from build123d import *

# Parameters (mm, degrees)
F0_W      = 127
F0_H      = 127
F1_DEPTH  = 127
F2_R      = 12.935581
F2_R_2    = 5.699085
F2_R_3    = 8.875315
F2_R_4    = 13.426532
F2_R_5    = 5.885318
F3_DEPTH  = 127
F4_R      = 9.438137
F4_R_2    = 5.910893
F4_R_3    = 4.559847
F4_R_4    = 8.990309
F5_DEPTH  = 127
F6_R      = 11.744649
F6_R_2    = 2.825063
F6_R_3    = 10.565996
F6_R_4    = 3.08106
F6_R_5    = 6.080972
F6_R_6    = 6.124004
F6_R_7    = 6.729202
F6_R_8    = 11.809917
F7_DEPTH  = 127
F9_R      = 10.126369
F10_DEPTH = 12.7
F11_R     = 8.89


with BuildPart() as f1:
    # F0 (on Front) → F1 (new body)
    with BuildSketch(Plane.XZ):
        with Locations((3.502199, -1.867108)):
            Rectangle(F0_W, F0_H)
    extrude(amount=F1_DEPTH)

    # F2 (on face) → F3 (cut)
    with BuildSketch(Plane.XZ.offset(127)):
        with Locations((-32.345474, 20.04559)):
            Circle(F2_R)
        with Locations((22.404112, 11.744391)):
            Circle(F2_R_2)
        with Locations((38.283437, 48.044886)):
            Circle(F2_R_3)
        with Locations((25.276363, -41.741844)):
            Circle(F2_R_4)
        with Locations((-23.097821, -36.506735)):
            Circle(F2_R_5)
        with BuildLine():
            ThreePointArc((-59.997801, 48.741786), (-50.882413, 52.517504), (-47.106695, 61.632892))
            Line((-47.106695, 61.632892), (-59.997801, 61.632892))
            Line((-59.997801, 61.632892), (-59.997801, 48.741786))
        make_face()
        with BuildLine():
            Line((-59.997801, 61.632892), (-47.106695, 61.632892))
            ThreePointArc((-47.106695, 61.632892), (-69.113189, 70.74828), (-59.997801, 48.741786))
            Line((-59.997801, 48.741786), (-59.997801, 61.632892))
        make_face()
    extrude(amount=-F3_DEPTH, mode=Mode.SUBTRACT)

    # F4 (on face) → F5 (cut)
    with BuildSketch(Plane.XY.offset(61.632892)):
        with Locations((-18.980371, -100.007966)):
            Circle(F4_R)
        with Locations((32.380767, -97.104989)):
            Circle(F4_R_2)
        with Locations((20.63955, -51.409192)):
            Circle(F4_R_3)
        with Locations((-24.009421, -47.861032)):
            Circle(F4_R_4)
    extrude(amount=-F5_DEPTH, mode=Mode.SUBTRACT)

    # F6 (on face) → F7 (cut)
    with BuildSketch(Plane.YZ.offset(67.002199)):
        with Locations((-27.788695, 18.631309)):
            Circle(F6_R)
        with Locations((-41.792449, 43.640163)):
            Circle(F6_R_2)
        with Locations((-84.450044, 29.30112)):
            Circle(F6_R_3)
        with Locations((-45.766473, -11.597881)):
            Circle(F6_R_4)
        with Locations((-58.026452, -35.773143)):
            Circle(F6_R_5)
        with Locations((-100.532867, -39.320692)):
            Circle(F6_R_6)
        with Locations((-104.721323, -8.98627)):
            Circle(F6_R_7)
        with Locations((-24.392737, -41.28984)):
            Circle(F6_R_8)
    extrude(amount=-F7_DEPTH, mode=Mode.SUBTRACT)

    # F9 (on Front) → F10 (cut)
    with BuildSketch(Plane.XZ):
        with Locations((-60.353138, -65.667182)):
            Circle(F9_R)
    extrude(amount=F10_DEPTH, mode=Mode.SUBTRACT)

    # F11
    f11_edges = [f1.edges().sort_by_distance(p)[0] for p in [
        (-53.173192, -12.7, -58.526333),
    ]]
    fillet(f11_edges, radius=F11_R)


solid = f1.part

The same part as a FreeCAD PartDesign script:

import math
import FreeCAD as App
import Part
import Sketcher
from FreeCAD import Vector
Q = App.Units.Quantity


def edges_at(feature, points):
    """Names of the edges that pass closest to the given points."""
    edges = feature.Shape.Edges
    near = lambda p: min(range(len(edges)), key=lambda i: edges[i].distToShape(Part.Vertex(*p))[0])
    return sorted({f"Edge{near(p) + 1}" for p in points})


def add_polygon(sketch, points):
    """Adds a closed chain of lines whose ends are joined by coincident constraints."""
    first, n = sketch.GeometryCount, len(points)
    for a, b in zip(points, points[1:] + points[:1]):
        sketch.addGeometry(Part.LineSegment(App.Vector(*a, 0), App.Vector(*b, 0)), False)
    for i in range(n):
        sketch.addConstraint(Sketcher.Constraint("Coincident", first + i, 2, first + (i + 1) % n, 1))

doc = App.newDocument("Part")
body = doc.addObject("PartDesign::Body", "Body")

sketch1 = doc.addObject("Sketcher::SketchObject", "Sketch")
body.addObject(sketch1)
sketch1.AttachmentSupport = (doc.XZ_Plane, [""])
sketch1.MapMode = "FlatFace"
add_polygon(sketch1, [(-59.997801, 61.632892), (-59.997801, -65.367108), (67.002199, -65.367108), (67.002199, 61.632892)])
sketch1.addConstraint([
    Sketcher.Constraint("Vertical", 0),
    Sketcher.Constraint("Horizontal", 1),
    Sketcher.Constraint("Vertical", 2),
    Sketcher.Constraint("Horizontal", 3),
    Sketcher.Constraint("Equal", 3, 0),
    Sketcher.Constraint("DistanceX", 1, 1, 1, 2, Q("5 in")),
    Sketcher.Constraint("DistanceX", 0, 2, -1, 1, 59.997801),
    Sketcher.Constraint("DistanceY", 0, 2, -1, 1, 65.367108),
])
pad1 = doc.addObject("PartDesign::Pad", "Pad")
body.addObject(pad1)
pad1.Profile = sketch1
pad1.Length = Q("5 in")

sketch2 = doc.addObject("Sketcher::SketchObject", "Sketch001")
body.addObject(sketch2)
sketch2.AttachmentSupport = (doc.XZ_Plane, [""])
sketch2.MapMode = "FlatFace"
sketch2.AttachmentOffset = App.Placement(Vector(0, 0, 5 * 25.4), App.Rotation())
sketch2.addGeometry([
    Part.Circle(Vector(-32.345474, 20.04559, 0), Vector(0, 0, 1), 12.935581),
    Part.Circle(Vector(22.404112, 11.744391, 0), Vector(0, 0, 1), 5.699085),
    Part.Circle(Vector(38.283437, 48.044886, 0), Vector(0, 0, 1), 8.875315),
    Part.Circle(Vector(25.276363, -41.741844, 0), Vector(0, 0, 1), 13.426532),
    Part.Circle(Vector(-23.097821, -36.506735, 0), Vector(0, 0, 1), 5.885318),
    Part.ArcOfCircle(Part.Circle(Vector(-59.997803, 61.632894, 0), Vector(0, 0, 1), 12.891108), math.radians(-89.999993), math.radians(-0.000007)),
    Part.ArcOfCircle(Part.Circle(Vector(-59.997801, 61.632892, 0), Vector(0, 0, 1), 12.891106), math.radians(0.000001), math.radians(269.999999)),
], False)
sketch2.addConstraint([
    Sketcher.Constraint("Tangent", 5, 1, 6, 2),
    Sketcher.Constraint("Coincident", 6, 1, 5, 2),
    Sketcher.Constraint("Horizontal", 5, 3, 6, 1),
    Sketcher.Constraint("Vertical", 6, 3, 5, 1),
    Sketcher.Constraint("Diameter", 1, 11.39817),
    Sketcher.Constraint("Diameter", 2, 17.75063),
    Sketcher.Constraint("Diameter", 0, 25.871162),
    Sketcher.Constraint("Diameter", 3, 26.853064),
    Sketcher.Constraint("Diameter", 4, 11.770636),
    Sketcher.Constraint("Radius", 5, 12.891108),
    Sketcher.Constraint("DistanceX", 6, 3, -1, 1, 59.997801),
    Sketcher.Constraint("DistanceY", 1, 3, 0, 3, 8.301199),
    Sketcher.Constraint("DistanceY", 0, 3, 6, 3, 41.587302),
    Sketcher.Constraint("DistanceY", -1, 1, 0, 3, 20.04559),
    Sketcher.Constraint("DistanceX", 4, 3, -1, 1, 23.097821),
    Sketcher.Constraint("DistanceX", 0, 3, 2, 3, 70.628911),
    Sketcher.Constraint("DistanceX", 1, 3, 3, 3, 2.872251),
    Sketcher.Constraint("DistanceY", 3, 3, 2, 3, 89.78673),
    Sketcher.Constraint("DistanceY", 3, 3, 4, 3, 5.235109),
    Sketcher.Constraint("DistanceX", 4, 3, 2, 3, 61.381258),
    Sketcher.Constraint("DistanceY", 4, 3, 5, 3, 98.139629),
    Sketcher.Constraint("DistanceX", -1, 1, 1, 3, 22.404112),
])
pocket1 = doc.addObject("PartDesign::Pocket", "Pocket")
body.addObject(pocket1)
pocket1.Profile = sketch2
pocket1.Length = Q("5 in")

sketch3 = doc.addObject("Sketcher::SketchObject", "Sketch002")
body.addObject(sketch3)
sketch3.AttachmentSupport = (doc.XY_Plane, [""])
sketch3.MapMode = "FlatFace"
sketch3.AttachmentOffset = App.Placement(Vector(0, 0, 61.632892), App.Rotation())
sketch3.addGeometry([
    Part.Circle(Vector(-18.980371, -100.007966, 0), Vector(0, 0, 1), 9.438137),
    Part.Circle(Vector(32.380767, -97.104989, 0), Vector(0, 0, 1), 5.910893),
    Part.Circle(Vector(20.63955, -51.409192, 0), Vector(0, 0, 1), 4.559847),
    Part.Circle(Vector(-24.009421, -47.861032, 0), Vector(0, 0, 1), 8.990309),
], False)
sketch3.addConstraint([
    Sketcher.Constraint("Diameter", 3, 17.980618),
    Sketcher.Constraint("Diameter", 0, 18.876274),
    Sketcher.Constraint("Diameter", 1, 11.821786),
    Sketcher.Constraint("Diameter", 2, 9.119694),
    Sketcher.Constraint("DistanceX", 0, 3, -1, 1, 18.980371),
    Sketcher.Constraint("DistanceY", 1, 3, -1, 1, 97.104989),
    Sketcher.Constraint("DistanceX", -1, 1, 2, 3, 20.63955),
    Sketcher.Constraint("DistanceY", 2, 3, -1, 1, 51.409192),
    Sketcher.Constraint("DistanceX", 3, 3, -1, 1, 24.009421),
    Sketcher.Constraint("DistanceY", 2, 3, 3, 3, 3.54816),
    Sketcher.Constraint("DistanceY", 0, 3, -1, 1, 100.007966),
    Sketcher.Constraint("DistanceX", -1, 1, 1, 3, 32.380767),
])
pocket2 = doc.addObject("PartDesign::Pocket", "Pocket001")
body.addObject(pocket2)
pocket2.Profile = sketch3
pocket2.Length = Q("5 in")

sketch4 = doc.addObject("Sketcher::SketchObject", "Sketch003")
body.addObject(sketch4)
sketch4.AttachmentSupport = (doc.YZ_Plane, [""])
sketch4.MapMode = "FlatFace"
sketch4.AttachmentOffset = App.Placement(Vector(0, 0, 67.002199), App.Rotation())
sketch4.addGeometry([
    Part.Circle(Vector(-27.788695, 18.631309, 0), Vector(0, 0, 1), 11.744649),
    Part.Circle(Vector(-41.792449, 43.640163, 0), Vector(0, 0, 1), 2.825063),
    Part.Circle(Vector(-84.450044, 29.30112, 0), Vector(0, 0, 1), 10.565996),
    Part.Circle(Vector(-45.766473, -11.597881, 0), Vector(0, 0, 1), 3.08106),
    Part.Circle(Vector(-58.026452, -35.773143, 0), Vector(0, 0, 1), 6.080972),
    Part.Circle(Vector(-100.532867, -39.320692, 0), Vector(0, 0, 1), 6.124004),
    Part.Circle(Vector(-104.721323, -8.98627, 0), Vector(0, 0, 1), 6.729202),
    Part.Circle(Vector(-24.392737, -41.28984, 0), Vector(0, 0, 1), 11.809917),
], False)
sketch4.addConstraint([
    Sketcher.Constraint("Diameter", 0, 23.489298),
    Sketcher.Constraint("Diameter", 3, 6.16212),
    Sketcher.Constraint("Diameter", 1, 5.650126),
    Sketcher.Constraint("Diameter", 2, 21.131992),
    Sketcher.Constraint("Diameter", 4, 12.161944),
    Sketcher.Constraint("Diameter", 5, 12.248008),
    Sketcher.Constraint("Diameter", 6, 13.458404),
    Sketcher.Constraint("Diameter", 7, 23.619834),
    Sketcher.Constraint("DistanceX", 6, 3, 5, 3, Q("0.1648998 in")),
    Sketcher.Constraint("DistanceY", 3, 3, 2, 3, 40.899001),
    Sketcher.Constraint("DistanceY", 5, 3, 0, 3, 57.952001),
    Sketcher.Constraint("DistanceY", -1, 1, 0, 3, 18.631309),
    Sketcher.Constraint("DistanceX", 1, 3, -1, 1, 41.792449),
    Sketcher.Constraint("DistanceY", -1, 1, 2, 3, 29.30112),
    Sketcher.Constraint("DistanceY", 6, 3, -1, 1, 8.98627),
    Sketcher.Constraint("DistanceY", 7, 3, -1, 1, 41.28984),
    Sketcher.Constraint("DistanceX", 2, 3, 0, 3, 56.661349),
    Sketcher.Constraint("DistanceX", 2, 3, 3, 3, 38.683571),
    Sketcher.Constraint("DistanceX", 4, 3, 3, 3, 12.259979),
    Sketcher.Constraint("DistanceY", 4, 3, 3, 3, 24.175262),
    Sketcher.Constraint("DistanceX", 5, 3, 0, 3, 72.744172),
    Sketcher.Constraint("DistanceX", 0, 3, 7, 3, 3.395958),
    Sketcher.Constraint("DistanceX", 0, 3, -1, 1, 27.788695),
    Sketcher.Constraint("DistanceY", -1, 1, 1, 3, 43.640163),
])
pocket3 = doc.addObject("PartDesign::Pocket", "Pocket002")
body.addObject(pocket3)
pocket3.Profile = sketch4
pocket3.Length = Q("5 in")

sketch5 = doc.addObject("Sketcher::SketchObject", "Sketch004")
body.addObject(sketch5)
sketch5.AttachmentSupport = (doc.XZ_Plane, [""])
sketch5.MapMode = "FlatFace"
sketch5.addGeometry(Part.Circle(Vector(-60.353138, -65.667182, 0), Vector(0, 0, 1), 10.126369), False)
sketch5.addConstraint([
    Sketcher.Constraint("Diameter", 0, 20.252738),
    Sketcher.Constraint("DistanceY", 0, 3, -1, 1, 65.667182),
    Sketcher.Constraint("DistanceX", 0, 3, -1, 1, 60.353138),
])
pocket4 = doc.addObject("PartDesign::Pocket", "Pocket003")
body.addObject(pocket4)
pocket4.Profile = sketch5
pocket4.Length = Q("0.5 in")
pocket4.Reversed = True
doc.recompute()

fillet = doc.addObject("PartDesign::Fillet", "Fillet")
body.addObject(fillet)
fillet.Base = (pocket4, edges_at(pocket4, [(-53.173, -12.7, -58.526)]))
fillet.Radius = Q("0.35 in")

doc.recompute()
